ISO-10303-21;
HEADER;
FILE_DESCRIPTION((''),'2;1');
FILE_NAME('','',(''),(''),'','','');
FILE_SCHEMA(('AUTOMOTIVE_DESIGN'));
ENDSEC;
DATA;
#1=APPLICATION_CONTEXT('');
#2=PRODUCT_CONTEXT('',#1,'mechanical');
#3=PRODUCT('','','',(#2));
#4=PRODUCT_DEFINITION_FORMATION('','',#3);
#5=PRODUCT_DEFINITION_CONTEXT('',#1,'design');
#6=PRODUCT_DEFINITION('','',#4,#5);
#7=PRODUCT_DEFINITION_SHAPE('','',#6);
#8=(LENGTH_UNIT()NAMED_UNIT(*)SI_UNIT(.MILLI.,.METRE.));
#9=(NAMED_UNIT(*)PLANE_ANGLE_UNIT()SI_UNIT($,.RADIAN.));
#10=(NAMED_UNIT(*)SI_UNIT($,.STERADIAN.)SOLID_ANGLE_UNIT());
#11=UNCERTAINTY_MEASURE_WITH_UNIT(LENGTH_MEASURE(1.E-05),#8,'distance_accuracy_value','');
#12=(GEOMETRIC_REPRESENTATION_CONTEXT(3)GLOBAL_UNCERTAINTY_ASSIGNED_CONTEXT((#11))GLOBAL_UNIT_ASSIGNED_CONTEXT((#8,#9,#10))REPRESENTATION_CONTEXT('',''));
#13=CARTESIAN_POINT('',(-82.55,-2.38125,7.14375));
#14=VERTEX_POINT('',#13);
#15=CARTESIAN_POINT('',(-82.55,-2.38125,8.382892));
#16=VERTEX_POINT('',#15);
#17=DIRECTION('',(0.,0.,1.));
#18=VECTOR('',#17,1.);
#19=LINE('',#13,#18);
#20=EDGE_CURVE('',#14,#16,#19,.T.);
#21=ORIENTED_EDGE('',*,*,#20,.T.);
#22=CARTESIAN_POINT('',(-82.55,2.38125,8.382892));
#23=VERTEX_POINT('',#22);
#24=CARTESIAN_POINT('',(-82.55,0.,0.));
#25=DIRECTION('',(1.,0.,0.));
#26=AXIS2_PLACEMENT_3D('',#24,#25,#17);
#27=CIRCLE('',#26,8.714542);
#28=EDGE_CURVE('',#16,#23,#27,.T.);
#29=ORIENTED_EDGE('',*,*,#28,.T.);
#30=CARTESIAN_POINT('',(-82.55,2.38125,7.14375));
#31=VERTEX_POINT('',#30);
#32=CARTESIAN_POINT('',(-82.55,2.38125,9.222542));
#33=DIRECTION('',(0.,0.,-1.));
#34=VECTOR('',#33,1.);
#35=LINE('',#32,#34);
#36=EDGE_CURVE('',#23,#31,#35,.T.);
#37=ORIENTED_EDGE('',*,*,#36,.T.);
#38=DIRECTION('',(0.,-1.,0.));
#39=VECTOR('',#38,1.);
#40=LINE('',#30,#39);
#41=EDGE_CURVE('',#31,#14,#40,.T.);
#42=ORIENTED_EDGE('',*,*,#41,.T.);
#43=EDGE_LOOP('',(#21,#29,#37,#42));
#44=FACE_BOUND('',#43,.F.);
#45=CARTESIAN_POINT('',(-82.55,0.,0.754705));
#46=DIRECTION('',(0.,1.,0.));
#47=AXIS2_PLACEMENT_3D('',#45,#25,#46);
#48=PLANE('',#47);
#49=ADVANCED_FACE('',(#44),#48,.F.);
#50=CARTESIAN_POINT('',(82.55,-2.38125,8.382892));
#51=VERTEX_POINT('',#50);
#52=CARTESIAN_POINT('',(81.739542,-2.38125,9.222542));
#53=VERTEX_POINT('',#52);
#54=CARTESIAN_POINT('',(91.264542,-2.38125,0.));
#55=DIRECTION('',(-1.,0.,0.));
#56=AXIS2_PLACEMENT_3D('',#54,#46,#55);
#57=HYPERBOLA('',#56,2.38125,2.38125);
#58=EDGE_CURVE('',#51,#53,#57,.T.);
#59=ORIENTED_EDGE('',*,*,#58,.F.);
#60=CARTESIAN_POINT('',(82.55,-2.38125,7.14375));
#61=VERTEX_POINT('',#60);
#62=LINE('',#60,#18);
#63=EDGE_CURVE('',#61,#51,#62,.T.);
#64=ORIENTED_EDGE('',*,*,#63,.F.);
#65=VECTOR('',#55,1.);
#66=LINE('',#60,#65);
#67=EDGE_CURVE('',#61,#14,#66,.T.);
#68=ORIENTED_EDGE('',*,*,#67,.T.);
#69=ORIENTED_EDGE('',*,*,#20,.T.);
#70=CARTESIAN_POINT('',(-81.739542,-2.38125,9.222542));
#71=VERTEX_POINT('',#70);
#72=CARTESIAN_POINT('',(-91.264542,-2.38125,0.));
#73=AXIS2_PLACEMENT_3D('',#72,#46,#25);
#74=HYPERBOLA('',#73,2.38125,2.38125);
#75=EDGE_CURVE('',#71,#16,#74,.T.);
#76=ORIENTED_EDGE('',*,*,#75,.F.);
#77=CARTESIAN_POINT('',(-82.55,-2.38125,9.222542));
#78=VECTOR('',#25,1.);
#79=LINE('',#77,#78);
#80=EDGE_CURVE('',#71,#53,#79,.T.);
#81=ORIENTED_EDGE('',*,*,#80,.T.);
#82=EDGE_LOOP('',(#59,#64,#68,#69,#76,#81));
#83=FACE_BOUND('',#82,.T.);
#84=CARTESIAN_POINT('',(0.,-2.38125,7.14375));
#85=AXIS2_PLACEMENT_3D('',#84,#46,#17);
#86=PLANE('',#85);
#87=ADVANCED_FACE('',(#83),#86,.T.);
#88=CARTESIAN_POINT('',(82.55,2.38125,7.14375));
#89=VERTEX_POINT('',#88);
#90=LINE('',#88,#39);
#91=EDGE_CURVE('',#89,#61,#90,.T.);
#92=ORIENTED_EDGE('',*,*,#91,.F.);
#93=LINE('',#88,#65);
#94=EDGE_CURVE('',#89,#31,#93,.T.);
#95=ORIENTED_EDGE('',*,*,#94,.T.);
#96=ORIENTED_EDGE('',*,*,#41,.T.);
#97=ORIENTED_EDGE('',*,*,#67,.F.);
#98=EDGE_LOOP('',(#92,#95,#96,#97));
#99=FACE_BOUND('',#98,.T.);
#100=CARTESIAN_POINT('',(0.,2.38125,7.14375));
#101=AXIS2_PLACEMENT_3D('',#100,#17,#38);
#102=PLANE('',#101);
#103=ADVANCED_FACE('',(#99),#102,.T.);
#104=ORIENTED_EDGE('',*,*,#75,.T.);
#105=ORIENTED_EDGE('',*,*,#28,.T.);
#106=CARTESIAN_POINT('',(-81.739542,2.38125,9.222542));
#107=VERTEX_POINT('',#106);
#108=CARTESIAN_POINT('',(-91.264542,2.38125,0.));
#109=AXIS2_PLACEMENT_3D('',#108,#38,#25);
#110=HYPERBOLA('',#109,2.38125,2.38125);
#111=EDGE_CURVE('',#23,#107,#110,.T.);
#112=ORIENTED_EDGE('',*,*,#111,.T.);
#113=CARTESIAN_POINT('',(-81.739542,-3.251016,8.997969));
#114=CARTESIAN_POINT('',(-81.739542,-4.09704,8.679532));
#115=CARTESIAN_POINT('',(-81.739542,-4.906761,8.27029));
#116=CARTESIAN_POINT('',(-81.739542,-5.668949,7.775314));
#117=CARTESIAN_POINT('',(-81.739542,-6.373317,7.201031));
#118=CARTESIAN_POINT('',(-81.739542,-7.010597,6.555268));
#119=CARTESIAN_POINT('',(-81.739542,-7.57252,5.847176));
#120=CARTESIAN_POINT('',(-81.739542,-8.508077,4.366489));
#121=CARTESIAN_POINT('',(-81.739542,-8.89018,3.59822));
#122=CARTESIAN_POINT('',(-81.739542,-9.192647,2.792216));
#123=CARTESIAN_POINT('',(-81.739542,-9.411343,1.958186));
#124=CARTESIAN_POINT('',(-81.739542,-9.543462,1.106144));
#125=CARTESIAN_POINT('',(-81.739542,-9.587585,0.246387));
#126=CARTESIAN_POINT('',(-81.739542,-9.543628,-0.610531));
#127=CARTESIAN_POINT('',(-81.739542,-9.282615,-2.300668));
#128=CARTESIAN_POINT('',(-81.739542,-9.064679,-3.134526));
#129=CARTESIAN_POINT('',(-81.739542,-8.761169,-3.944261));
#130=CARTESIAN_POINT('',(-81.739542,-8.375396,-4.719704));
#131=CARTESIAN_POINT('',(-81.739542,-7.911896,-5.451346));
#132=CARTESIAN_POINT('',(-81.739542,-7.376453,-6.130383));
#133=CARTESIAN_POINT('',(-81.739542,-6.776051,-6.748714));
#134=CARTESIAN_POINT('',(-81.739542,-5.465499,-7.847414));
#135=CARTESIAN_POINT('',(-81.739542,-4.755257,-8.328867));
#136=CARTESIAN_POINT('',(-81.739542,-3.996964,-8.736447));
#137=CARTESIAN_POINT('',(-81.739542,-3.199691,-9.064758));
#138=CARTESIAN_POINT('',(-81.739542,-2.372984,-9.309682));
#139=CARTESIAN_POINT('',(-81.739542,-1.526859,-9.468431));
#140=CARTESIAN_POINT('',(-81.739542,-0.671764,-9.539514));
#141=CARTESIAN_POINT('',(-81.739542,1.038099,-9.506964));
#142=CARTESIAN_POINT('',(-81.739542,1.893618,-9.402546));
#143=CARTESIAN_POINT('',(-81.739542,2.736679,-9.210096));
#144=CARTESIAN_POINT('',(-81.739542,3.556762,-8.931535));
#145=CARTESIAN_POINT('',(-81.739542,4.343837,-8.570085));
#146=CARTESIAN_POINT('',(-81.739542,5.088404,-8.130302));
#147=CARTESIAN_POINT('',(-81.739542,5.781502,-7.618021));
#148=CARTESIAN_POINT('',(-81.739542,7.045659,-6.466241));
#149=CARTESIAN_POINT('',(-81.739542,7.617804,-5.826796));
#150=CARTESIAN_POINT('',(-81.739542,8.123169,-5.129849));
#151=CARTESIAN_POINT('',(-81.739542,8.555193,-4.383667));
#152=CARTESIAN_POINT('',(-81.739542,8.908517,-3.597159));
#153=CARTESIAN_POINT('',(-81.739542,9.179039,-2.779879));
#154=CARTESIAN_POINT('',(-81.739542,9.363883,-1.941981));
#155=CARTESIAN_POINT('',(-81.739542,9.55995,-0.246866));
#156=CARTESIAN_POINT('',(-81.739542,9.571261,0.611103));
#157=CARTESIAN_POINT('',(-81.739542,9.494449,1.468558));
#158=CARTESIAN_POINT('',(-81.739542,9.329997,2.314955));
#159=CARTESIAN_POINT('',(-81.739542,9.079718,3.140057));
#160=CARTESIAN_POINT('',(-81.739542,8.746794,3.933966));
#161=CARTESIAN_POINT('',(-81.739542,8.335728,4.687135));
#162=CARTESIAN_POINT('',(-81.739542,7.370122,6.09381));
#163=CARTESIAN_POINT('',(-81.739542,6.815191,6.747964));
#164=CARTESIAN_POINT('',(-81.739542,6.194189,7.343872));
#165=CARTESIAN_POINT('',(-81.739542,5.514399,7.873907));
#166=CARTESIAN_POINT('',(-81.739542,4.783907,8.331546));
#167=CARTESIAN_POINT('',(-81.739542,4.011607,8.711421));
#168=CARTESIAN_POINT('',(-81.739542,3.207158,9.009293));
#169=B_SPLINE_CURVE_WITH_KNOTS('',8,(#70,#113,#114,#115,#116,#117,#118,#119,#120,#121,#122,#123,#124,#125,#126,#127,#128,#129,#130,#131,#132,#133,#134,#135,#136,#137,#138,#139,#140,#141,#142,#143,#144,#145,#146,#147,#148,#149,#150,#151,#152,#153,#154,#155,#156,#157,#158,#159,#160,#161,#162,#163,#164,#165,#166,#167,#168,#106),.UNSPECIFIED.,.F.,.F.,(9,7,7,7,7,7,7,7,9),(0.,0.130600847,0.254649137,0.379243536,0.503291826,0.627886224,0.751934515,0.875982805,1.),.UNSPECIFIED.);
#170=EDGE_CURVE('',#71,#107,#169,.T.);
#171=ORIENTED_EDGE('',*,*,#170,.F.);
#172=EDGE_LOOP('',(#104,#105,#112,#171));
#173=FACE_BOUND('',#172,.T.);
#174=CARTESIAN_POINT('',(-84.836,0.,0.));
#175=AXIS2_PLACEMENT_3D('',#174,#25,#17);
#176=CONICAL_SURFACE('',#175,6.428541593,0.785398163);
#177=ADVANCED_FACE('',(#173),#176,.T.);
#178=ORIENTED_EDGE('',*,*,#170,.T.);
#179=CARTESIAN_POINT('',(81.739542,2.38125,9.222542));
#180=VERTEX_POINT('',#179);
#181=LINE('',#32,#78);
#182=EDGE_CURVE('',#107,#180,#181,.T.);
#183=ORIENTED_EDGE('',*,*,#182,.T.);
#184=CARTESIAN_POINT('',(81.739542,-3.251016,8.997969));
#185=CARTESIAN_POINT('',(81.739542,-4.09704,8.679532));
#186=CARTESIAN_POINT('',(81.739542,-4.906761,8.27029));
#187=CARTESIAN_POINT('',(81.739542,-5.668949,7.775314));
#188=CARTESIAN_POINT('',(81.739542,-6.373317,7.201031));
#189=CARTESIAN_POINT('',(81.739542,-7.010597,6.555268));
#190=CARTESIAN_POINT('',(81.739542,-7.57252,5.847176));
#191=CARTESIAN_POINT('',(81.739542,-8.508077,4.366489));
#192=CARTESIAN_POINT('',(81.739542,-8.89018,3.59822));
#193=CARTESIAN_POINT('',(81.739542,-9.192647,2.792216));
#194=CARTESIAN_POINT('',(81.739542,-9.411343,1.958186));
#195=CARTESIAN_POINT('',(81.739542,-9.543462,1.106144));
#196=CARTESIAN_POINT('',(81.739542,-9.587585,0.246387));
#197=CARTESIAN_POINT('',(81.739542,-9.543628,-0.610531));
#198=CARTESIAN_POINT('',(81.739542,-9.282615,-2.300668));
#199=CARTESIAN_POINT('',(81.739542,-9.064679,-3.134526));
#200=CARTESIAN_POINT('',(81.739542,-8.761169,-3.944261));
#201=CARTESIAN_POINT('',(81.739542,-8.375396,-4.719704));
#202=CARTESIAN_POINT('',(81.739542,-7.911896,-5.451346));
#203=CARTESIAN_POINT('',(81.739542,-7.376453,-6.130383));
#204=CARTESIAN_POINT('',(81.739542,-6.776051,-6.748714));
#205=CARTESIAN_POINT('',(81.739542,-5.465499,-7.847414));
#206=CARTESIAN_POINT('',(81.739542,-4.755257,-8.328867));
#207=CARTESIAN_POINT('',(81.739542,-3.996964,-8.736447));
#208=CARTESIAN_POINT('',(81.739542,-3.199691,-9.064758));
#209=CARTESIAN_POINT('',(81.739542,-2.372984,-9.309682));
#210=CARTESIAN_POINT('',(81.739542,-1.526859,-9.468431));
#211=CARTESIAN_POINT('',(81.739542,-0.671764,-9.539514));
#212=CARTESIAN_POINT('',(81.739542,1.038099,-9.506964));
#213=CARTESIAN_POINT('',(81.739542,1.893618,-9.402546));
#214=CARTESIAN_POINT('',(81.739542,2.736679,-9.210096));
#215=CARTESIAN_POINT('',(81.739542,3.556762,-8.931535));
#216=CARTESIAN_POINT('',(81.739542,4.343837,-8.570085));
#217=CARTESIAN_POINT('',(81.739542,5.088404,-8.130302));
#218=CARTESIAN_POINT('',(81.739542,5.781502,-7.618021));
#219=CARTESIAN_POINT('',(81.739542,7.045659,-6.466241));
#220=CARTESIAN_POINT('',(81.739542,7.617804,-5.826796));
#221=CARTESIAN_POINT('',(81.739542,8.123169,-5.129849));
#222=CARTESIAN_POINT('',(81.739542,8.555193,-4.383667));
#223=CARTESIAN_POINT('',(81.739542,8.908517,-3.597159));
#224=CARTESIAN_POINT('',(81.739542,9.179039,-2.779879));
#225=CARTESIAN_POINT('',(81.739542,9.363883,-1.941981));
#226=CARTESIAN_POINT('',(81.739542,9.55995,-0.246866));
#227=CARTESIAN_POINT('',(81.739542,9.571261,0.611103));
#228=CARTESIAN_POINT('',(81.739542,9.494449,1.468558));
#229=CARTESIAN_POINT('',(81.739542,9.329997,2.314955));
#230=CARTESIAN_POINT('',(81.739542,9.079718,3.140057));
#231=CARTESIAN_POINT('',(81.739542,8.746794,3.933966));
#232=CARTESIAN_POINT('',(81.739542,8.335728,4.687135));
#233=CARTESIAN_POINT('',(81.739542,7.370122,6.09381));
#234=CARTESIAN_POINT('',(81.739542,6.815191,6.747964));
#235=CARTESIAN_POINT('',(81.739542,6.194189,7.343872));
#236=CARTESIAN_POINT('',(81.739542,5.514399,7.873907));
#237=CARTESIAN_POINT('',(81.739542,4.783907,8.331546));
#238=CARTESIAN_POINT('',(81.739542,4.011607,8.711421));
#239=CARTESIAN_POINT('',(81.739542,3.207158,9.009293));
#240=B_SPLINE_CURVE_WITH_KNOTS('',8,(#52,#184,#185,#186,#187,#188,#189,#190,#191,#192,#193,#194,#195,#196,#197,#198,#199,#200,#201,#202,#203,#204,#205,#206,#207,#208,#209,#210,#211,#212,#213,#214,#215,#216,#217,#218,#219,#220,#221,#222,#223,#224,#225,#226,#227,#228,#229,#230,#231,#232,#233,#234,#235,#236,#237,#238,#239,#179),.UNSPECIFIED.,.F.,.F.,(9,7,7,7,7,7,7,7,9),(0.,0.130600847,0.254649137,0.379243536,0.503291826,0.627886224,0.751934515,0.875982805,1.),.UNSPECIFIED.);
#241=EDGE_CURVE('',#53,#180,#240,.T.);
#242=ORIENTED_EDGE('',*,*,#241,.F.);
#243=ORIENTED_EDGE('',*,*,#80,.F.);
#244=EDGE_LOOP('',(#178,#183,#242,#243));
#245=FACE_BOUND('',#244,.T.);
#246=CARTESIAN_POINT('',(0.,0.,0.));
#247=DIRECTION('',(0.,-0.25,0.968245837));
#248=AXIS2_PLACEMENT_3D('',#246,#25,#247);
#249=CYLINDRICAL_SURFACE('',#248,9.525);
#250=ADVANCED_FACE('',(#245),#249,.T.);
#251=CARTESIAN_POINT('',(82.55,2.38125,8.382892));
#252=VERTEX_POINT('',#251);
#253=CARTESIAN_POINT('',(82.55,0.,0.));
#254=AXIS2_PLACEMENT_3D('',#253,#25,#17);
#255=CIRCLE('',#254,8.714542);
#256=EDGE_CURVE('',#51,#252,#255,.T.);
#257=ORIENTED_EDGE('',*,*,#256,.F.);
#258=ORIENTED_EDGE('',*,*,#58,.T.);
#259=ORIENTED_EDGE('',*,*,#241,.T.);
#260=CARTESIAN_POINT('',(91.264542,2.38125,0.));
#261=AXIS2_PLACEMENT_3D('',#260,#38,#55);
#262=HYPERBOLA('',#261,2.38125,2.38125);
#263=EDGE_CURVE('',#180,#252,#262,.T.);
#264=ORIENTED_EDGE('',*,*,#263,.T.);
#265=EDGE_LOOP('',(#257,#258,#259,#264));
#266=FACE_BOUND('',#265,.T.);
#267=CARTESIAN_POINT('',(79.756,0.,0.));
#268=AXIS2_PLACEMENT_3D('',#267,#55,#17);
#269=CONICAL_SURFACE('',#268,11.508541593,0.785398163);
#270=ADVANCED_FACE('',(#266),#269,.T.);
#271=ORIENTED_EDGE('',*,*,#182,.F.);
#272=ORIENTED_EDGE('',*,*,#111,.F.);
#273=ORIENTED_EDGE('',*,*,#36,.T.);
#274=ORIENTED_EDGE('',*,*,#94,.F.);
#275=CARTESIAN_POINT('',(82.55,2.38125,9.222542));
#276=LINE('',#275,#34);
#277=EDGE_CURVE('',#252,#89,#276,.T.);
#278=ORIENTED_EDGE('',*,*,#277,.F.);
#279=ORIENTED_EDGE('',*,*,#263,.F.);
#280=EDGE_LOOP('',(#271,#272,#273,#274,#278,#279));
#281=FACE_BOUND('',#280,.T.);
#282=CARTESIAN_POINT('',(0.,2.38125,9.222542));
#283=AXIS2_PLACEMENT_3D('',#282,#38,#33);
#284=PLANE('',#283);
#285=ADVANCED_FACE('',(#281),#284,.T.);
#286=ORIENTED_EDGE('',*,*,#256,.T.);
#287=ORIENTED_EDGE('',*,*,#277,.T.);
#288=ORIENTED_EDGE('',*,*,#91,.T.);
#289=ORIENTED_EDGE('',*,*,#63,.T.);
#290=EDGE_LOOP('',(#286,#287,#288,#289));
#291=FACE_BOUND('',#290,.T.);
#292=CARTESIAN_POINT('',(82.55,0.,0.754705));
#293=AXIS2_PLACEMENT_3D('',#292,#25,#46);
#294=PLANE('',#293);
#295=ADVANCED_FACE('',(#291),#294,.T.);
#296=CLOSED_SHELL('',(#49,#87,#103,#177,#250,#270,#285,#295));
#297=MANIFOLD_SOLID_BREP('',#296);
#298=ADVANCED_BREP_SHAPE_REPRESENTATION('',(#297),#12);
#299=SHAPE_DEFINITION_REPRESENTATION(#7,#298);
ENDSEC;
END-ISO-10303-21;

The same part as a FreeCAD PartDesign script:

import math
import FreeCAD as App
import Part
import Sketcher

V = App.Vector
Q = App.Units.Quantity


def add_polygon(sketch, points):
    """Adds a closed chain of lines whose ends are joined by coincident constraints."""
    first, n = sketch.GeometryCount, len(points)
    for a, b in zip(points, points[1:] + points[:1]):
        sketch.addGeometry(Part.LineSegment(App.Vector(*a, 0), App.Vector(*b, 0)), False)
    for i in range(n):
        sketch.addConstraint(Sketcher.Constraint("Coincident", first + i, 2, first + (i + 1) % n, 1))

doc = App.newDocument("Part")
body = doc.addObject("PartDesign::Body", "Body")

# Sketch on YZ plane
sketch1 = body.newObject("Sketcher::SketchObject", "Sketch")
sketch1.AttachmentSupport = (doc.getObject("YZ_Plane"), [""])
sketch1.MapMode = "FlatFace"
sketch1.addGeometry([
    Part.LineSegment(V(-2.4, 7.1, 0), V(-2.4, 9.2, 0)),
    Part.ArcOfCircle(Part.Circle(V(0, 0, 0), V(0, 0, 1), 9.5), math.radians(104), math.radians(436)),
    Part.LineSegment(V(2.4, 9.2, 0), V(2.4, 7.1, 0)),
    Part.LineSegment(V(2.4, 7.1, 0), V(-2.4, 7.1, 0)),
], False)
sketch1.addConstraint([
    Sketcher.Constraint("Coincident", 0, 2, 1, 1),
    Sketcher.Constraint("Coincident", 1, 2, 2, 1),
    Sketcher.Constraint("Coincident", 2, 2, 3, 1),
    Sketcher.Constraint("Coincident", 3, 2, 0, 1),
    Sketcher.Constraint("Vertical", 0),
    Sketcher.Constraint("Vertical", 2),
    Sketcher.Constraint("Horizontal", 3),
    Sketcher.Constraint("Coincident", 1, 3, -1, 1),
    Sketcher.Constraint("Horizontal", 0, 2, 1, 2),
    Sketcher.Constraint("Radius", 1, Q("0.375 in")),
    Sketcher.Constraint("DistanceX", 3, 2, 3, 1, Q("0.1875 in")),
    Sketcher.Constraint("DistanceY", -1, 1, 2, 2, Q("0.28125 in")),
])
pad1 = body.newObject("PartDesign::Pad", "Pad")
pad1.Profile = sketch1
pad1.Length = Q("6.5 in")
pad1.Midplane = True

# Sketch on XZ plane
sketch2 = body.newObject("Sketcher::SketchObject", "Sketch001")
sketch2.AttachmentSupport = (doc.getObject("XZ_Plane"), [""])
sketch2.MapMode = "FlatFace"
add_polygon(sketch2, [(85, 12), (80, 12), (85, 6)])  # lines 0-2
add_polygon(sketch2, [(-80, 12), (-85, 12), (-85, 6)])  # lines 3-5
sketch2.addConstraint([
    Sketcher.Constraint("Horizontal", 0),
    Sketcher.Constraint("Vertical", 2),
    Sketcher.Constraint("Horizontal", 3),
    Sketcher.Constraint("Vertical", 4),
    Sketcher.Constraint("Symmetric", 2, 2, 3, 2, -2),
    Sketcher.Constraint("Perpendicular", 1, 5),
    Sketcher.Constraint("Horizontal", 1, 2, 4, 2),
    Sketcher.Constraint("Equal", 0, 3),
    Sketcher.Constraint("DistanceX", 0, 2, 0, 1, Q("0.2 in")),
    Sketcher.Constraint("DistanceX", -1, 1, 0, 2, Q("3.14 in")),
    Sketcher.Constraint("DistanceY", -1, 1, 0, 2, Q("11.508542 mm")),
])
groove = body.newObject("PartDesign::Groove", "Groove")
groove.Profile = sketch2
groove.ReferenceAxis = (sketch2, ["H_Axis"])
groove.Angle = 360

doc.recompute()
